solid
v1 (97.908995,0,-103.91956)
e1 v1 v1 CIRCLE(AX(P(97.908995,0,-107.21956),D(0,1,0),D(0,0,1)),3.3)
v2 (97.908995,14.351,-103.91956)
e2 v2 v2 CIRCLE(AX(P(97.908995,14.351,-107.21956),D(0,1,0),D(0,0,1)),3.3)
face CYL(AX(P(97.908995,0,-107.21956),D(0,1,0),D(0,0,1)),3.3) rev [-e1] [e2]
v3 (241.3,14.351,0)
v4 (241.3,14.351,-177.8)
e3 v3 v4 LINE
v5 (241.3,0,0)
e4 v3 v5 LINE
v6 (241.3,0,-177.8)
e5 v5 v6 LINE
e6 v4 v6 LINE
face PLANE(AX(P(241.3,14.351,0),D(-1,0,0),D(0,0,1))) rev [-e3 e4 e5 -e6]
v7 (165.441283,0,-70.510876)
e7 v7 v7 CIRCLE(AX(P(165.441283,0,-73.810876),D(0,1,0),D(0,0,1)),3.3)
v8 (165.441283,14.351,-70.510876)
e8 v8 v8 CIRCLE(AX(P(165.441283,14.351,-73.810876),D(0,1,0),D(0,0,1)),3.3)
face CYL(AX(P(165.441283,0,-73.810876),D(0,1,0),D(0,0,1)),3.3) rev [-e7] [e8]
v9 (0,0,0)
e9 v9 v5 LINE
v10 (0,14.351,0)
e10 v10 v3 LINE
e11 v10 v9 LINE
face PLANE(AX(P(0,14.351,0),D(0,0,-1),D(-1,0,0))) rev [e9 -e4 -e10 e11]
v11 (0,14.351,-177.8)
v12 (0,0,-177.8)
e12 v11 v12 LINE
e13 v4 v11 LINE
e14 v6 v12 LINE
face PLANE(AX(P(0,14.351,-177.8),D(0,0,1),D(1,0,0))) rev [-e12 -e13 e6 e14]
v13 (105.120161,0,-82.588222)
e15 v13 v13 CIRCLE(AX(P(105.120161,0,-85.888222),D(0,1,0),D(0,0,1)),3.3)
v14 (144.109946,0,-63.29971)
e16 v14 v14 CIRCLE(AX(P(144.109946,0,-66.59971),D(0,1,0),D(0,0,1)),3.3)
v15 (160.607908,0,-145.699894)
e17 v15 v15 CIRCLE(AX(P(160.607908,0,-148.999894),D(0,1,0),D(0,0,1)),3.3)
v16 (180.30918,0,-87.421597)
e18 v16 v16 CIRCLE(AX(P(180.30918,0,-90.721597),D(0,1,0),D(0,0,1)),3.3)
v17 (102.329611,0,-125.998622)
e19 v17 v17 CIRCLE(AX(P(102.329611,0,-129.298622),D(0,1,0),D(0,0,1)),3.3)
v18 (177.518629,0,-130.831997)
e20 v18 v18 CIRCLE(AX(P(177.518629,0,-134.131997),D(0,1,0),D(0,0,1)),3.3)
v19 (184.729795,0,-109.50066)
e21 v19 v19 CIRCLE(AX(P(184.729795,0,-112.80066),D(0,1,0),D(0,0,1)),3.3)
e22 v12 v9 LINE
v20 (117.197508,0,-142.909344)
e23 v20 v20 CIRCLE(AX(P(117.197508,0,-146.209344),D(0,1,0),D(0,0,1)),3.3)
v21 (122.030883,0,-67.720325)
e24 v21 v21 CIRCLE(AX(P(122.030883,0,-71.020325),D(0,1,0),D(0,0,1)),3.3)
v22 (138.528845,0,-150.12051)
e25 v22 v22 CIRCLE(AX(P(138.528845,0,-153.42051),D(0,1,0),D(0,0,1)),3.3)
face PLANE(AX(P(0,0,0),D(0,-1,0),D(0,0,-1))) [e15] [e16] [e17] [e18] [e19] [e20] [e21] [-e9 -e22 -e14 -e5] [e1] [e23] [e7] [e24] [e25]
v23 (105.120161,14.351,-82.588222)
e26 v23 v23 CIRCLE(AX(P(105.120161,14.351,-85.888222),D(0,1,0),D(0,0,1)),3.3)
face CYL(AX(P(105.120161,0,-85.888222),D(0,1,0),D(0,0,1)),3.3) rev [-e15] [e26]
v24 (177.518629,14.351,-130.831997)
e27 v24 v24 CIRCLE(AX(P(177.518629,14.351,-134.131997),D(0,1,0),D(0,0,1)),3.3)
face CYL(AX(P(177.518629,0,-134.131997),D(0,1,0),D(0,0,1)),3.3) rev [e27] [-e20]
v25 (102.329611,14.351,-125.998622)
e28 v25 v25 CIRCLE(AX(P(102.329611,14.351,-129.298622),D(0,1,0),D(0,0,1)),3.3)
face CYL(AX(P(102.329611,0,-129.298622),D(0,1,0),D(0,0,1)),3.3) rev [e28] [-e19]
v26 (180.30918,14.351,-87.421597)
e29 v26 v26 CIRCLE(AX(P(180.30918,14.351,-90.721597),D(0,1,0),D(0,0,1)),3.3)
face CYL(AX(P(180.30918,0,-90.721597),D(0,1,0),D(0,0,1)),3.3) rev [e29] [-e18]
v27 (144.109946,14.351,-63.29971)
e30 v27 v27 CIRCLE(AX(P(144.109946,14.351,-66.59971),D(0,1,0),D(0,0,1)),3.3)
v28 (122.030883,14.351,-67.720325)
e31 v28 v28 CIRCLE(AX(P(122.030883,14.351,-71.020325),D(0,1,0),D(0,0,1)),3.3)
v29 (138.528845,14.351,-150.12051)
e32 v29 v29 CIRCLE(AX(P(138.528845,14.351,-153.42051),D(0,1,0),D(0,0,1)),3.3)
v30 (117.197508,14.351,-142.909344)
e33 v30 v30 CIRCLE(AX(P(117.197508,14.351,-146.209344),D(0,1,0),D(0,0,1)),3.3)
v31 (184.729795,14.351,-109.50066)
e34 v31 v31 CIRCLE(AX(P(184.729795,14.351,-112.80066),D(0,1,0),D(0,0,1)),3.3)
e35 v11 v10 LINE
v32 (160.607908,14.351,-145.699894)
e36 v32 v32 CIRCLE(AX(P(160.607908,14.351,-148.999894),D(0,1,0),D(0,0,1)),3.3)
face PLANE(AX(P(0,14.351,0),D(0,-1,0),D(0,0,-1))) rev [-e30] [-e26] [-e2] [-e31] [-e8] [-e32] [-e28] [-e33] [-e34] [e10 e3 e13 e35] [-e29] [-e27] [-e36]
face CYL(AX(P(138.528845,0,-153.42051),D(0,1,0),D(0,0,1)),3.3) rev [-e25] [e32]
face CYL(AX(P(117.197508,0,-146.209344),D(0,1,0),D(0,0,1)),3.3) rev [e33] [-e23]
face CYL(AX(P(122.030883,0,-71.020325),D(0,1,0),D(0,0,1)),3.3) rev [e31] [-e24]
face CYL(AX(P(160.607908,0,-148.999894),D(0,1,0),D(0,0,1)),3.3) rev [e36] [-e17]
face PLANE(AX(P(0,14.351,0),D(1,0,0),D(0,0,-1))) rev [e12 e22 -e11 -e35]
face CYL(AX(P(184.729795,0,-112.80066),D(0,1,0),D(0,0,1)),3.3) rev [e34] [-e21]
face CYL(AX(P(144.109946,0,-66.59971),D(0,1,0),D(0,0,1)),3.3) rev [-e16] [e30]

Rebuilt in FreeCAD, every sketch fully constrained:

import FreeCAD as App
import Part
import Sketcher

V = App.Vector
Q = App.Units.Quantity


def add_polygon(sketch, points):
    """Adds a closed chain of lines whose ends are joined by coincident constraints."""
    first, n = sketch.GeometryCount, len(points)
    for a, b in zip(points, points[1:] + points[:1]):
        sketch.addGeometry(Part.LineSegment(App.Vector(*a, 0), App.Vector(*b, 0)), False)
    for i in range(n):
        sketch.addConstraint(Sketcher.Constraint("Coincident", first + i, 2, first + (i + 1) % n, 1))

doc = App.newDocument("Part")
body = doc.addObject("PartDesign::Body", "Body")

sketch1 = body.newObject("Sketcher::SketchObject", "Sketch")
sketch1.AttachmentSupport = (doc.getObject("XZ_Plane"), [""])
sketch1.MapMode = "FlatFace"
add_polygon(sketch1, [(0, -178), (0, 0), (241, 0), (241, -178)])
sketch1.addConstraint(Sketcher.Constraint("Vertical", 0))
sketch1.addConstraint(Sketcher.Constraint("Horizontal", 1))
sketch1.addConstraint(Sketcher.Constraint("Vertical", 2))
sketch1.addConstraint(Sketcher.Constraint("Horizontal", 3))
sketch1.addConstraint(Sketcher.Constraint("Coincident", 0, 2, -1, 1))
sketch1.addConstraint(Sketcher.Constraint("DistanceY", 0, 1, 0, 2, Q("7 in")))
sketch1.addConstraint(Sketcher.Constraint("DistanceX", 1, 1, 1, 2, Q("9.5 in")))
pad1 = body.newObject("PartDesign::Pad", "Pad")
pad1.Profile = sketch1
pad1.Length = Q("0.565 in")
pad1.Reversed = True

sketch2 = body.newObject("Sketcher::SketchObject", "Sketch001")
sketch2.AttachmentSupport = (doc.getObject("XZ_Plane"), [""])
sketch2.MapMode = "FlatFace"
sketch2.AttachmentOffset = App.Placement(V(0, 0, -0.565 * 25.4), App.Rotation())
sketch2.addGeometry(Part.Circle(V(180.3, -90.7, 0), V(0, 0, 1), 3.3), False)
sketch2.addGeometry(Part.Circle(V(184.7, -112.8, 0), V(0, 0, 1), 3.3), False)
sketch2.addGeometry(Part.Circle(V(177.5, -134.1, 0), V(0, 0, 1), 3.3), False)
sketch2.addGeometry(Part.Circle(V(160.6, -149, 0), V(0, 0, 1), 3.3), False)
sketch2.addGeometry(Part.Circle(V(138.5, -153.4, 0), V(0, 0, 1), 3.3), False)
sketch2.addGeometry(Part.Circle(V(117.2, -146.2, 0), V(0, 0, 1), 3.3), False)
sketch2.addGeometry(Part.Circle(V(102.3, -129.3, 0), V(0, 0, 1), 3.3), False)
sketch2.addGeometry(Part.Circle(V(97.9, -107.2, 0), V(0, 0, 1), 3.3), False)
sketch2.addGeometry(Part.Circle(V(105.1, -85.9, 0), V(0, 0, 1), 3.3), False)
sketch2.addGeometry(Part.Circle(V(122, -71, 0), V(0, 0, 1), 3.3), False)
sketch2.addGeometry(Part.Circle(V(165.4, -73.8, 0), V(0, 0, 1), 3.3), False)
sketch2.addGeometry(Part.Circle(V(144.1, -66.6, 0), V(0, 0, 1), 3.3), False)
sketch2.addConstraint(Sketcher.Constraint("Equal", 0, 1))
sketch2.addConstraint(Sketcher.Constraint("Equal", 1, 2))
sketch2.addConstraint(Sketcher.Constraint("Equal", 2, 3))
sketch2.addConstraint(Sketcher.Constraint("Equal", 3, 4))
sketch2.addConstraint(Sketcher.Constraint("Equal", 4, 5))
sketch2.addConstraint(Sketcher.Constraint("Equal", 5, 6))
sketch2.addConstraint(Sketcher.Constraint("Equal", 6, 7))
sketch2.addConstraint(Sketcher.Constraint("Equal", 7, 8))
sketch2.addConstraint(Sketcher.Constraint("Equal", 8, 9))
sketch2.addConstraint(Sketcher.Constraint("Equal", 9, 10))
sketch2.addConstraint(Sketcher.Constraint("Equal", 10, 11))
sketch2.addConstraint(Sketcher.Constraint("Diameter", 0, Q("6.6 mm")))
sketch2.addConstraint(Sketcher.Constraint("DistanceY", 2, 3, 0, 3, Q("43.4104 mm")))
sketch2.addConstraint(Sketcher.Constraint("DistanceX", 5, 3, 3, 3, Q("43.4104 mm")))
sketch2.addConstraint(Sketcher.Constraint("DistanceY", 6, 3, 8, 3, Q("43.4104 mm")))
sketch2.addConstraint(Sketcher.Constraint("DistanceX", 9, 3, 10, 3, Q("43.4104 mm")))
sketch2.addConstraint(Sketcher.Constraint("DistanceX", -1, 1, 0, 3, Q("180.30918 mm")))
sketch2.addConstraint(Sketcher.Constraint("DistanceY", 1, 3, -1, 1, Q("112.80066 mm")))
sketch2.addConstraint(Sketcher.Constraint("DistanceX", -1, 1, 2, 3, Q("177.518629 mm")))
sketch2.addConstraint(Sketcher.Constraint("DistanceY", 4, 3, -1, 1, Q("153.42051 mm")))
sketch2.addConstraint(Sketcher.Constraint("DistanceX", -1, 1, 6, 3, Q("102.329611 mm")))
sketch2.addConstraint(Sketcher.Constraint("DistanceY", 7, 3, -1, 1, Q("107.21956 mm")))
sketch2.addConstraint(Sketcher.Constraint("DistanceX", -1, 1, 8, 3, Q("105.120161 mm")))
sketch2.addConstraint(Sketcher.Constraint("DistanceY", 11, 3, -1, 1, Q("66.59971 mm")))
sketch2.addConstraint(Sketcher.Constraint("DistanceX", 3, 3, 2, 3, Q("16.910722 mm")))
sketch2.addConstraint(Sketcher.Constraint("DistanceX", 4, 3, 1, 3, Q("46.200951 mm")))
sketch2.addConstraint(Sketcher.Constraint("DistanceY", 3, 3, 5, 3, Q("2.79055 mm")))
sketch2.addConstraint(Sketcher.Constraint("DistanceY", 5, 3, 6, 3, Q("16.910722 mm")))
sketch2.addConstraint(Sketcher.Constraint("DistanceX", 7, 3, 4, 3, Q("40.61985 mm")))
sketch2.addConstraint(Sketcher.Constraint("DistanceX", 8, 3, 9, 3, Q("16.910722 mm")))
sketch2.addConstraint(Sketcher.Constraint("DistanceY", 0, 3, 9, 3, Q("19.701272 mm")))
sketch2.addConstraint(Sketcher.Constraint("DistanceY", 5, 3, 9, 3, Q("75.189019 mm")))
sketch2.addConstraint(Sketcher.Constraint("DistanceY", 0, 3, 10, 3, Q("16.910722 mm")))
sketch2.addConstraint(Sketcher.Constraint("DistanceX", 11, 3, 1, 3, Q("40.61985 mm")))
sketch2.addConstraint(Sketcher.Constraint("DistanceY", 0, 3, -1, 1, Q("90.721597 mm")))
sketch2.addConstraint(Sketcher.Constraint("DistanceX", -1, 1, 1, 3, Q("184.729795 mm")))
pocket1 = body.newObject("PartDesign::Pocket", "Pocket")
pocket1.Profile = sketch2
pocket1.Type = "ThroughAll"
pocket1.Reversed = True

doc.recompute()
